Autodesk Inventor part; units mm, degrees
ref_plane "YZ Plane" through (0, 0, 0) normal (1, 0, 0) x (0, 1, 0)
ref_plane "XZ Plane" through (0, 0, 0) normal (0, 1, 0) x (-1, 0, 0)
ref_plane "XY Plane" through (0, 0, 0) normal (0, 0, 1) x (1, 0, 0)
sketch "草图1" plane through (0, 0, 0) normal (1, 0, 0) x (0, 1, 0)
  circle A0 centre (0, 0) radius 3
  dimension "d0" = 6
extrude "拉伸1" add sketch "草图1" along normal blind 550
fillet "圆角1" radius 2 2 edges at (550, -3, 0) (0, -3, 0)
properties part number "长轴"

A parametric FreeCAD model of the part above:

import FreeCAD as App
import Part
import Sketcher
from FreeCAD import Vector


def edges_at(feature, points):
    """Names of the edges that pass closest to the given points."""
    edges = feature.Shape.Edges
    near = lambda p: min(range(len(edges)), key=lambda i: edges[i].distToShape(Part.Vertex(*p))[0])
    return sorted({f"Edge{near(p) + 1}" for p in points})

doc = App.newDocument("Part")
body = doc.addObject("PartDesign::Body", "Body")

sketch1 = body.newObject("Sketcher::SketchObject", "Sketch")
sketch1.AttachmentSupport = (doc.getObject("YZ_Plane"), [""])
sketch1.MapMode = "FlatFace"
sketch1.addGeometry(Part.Circle(Vector(0, 0, 0), Vector(0, 0, 1), 3), False)
sketch1.addConstraint(Sketcher.Constraint("Coincident", 0, 3, -1, 1))
sketch1.addConstraint(Sketcher.Constraint("Diameter", 0, 6.0))
pad1 = body.newObject("PartDesign::Pad", "Pad")
pad1.Profile = sketch1
pad1.Length = 550
doc.recompute()

fillet = body.newObject("PartDesign::Fillet", "Fillet")
fillet.Base = (pad1, edges_at(pad1, [(550, -3, 0), (0, -3, 0)]))
fillet.Radius = 2

doc.recompute()
